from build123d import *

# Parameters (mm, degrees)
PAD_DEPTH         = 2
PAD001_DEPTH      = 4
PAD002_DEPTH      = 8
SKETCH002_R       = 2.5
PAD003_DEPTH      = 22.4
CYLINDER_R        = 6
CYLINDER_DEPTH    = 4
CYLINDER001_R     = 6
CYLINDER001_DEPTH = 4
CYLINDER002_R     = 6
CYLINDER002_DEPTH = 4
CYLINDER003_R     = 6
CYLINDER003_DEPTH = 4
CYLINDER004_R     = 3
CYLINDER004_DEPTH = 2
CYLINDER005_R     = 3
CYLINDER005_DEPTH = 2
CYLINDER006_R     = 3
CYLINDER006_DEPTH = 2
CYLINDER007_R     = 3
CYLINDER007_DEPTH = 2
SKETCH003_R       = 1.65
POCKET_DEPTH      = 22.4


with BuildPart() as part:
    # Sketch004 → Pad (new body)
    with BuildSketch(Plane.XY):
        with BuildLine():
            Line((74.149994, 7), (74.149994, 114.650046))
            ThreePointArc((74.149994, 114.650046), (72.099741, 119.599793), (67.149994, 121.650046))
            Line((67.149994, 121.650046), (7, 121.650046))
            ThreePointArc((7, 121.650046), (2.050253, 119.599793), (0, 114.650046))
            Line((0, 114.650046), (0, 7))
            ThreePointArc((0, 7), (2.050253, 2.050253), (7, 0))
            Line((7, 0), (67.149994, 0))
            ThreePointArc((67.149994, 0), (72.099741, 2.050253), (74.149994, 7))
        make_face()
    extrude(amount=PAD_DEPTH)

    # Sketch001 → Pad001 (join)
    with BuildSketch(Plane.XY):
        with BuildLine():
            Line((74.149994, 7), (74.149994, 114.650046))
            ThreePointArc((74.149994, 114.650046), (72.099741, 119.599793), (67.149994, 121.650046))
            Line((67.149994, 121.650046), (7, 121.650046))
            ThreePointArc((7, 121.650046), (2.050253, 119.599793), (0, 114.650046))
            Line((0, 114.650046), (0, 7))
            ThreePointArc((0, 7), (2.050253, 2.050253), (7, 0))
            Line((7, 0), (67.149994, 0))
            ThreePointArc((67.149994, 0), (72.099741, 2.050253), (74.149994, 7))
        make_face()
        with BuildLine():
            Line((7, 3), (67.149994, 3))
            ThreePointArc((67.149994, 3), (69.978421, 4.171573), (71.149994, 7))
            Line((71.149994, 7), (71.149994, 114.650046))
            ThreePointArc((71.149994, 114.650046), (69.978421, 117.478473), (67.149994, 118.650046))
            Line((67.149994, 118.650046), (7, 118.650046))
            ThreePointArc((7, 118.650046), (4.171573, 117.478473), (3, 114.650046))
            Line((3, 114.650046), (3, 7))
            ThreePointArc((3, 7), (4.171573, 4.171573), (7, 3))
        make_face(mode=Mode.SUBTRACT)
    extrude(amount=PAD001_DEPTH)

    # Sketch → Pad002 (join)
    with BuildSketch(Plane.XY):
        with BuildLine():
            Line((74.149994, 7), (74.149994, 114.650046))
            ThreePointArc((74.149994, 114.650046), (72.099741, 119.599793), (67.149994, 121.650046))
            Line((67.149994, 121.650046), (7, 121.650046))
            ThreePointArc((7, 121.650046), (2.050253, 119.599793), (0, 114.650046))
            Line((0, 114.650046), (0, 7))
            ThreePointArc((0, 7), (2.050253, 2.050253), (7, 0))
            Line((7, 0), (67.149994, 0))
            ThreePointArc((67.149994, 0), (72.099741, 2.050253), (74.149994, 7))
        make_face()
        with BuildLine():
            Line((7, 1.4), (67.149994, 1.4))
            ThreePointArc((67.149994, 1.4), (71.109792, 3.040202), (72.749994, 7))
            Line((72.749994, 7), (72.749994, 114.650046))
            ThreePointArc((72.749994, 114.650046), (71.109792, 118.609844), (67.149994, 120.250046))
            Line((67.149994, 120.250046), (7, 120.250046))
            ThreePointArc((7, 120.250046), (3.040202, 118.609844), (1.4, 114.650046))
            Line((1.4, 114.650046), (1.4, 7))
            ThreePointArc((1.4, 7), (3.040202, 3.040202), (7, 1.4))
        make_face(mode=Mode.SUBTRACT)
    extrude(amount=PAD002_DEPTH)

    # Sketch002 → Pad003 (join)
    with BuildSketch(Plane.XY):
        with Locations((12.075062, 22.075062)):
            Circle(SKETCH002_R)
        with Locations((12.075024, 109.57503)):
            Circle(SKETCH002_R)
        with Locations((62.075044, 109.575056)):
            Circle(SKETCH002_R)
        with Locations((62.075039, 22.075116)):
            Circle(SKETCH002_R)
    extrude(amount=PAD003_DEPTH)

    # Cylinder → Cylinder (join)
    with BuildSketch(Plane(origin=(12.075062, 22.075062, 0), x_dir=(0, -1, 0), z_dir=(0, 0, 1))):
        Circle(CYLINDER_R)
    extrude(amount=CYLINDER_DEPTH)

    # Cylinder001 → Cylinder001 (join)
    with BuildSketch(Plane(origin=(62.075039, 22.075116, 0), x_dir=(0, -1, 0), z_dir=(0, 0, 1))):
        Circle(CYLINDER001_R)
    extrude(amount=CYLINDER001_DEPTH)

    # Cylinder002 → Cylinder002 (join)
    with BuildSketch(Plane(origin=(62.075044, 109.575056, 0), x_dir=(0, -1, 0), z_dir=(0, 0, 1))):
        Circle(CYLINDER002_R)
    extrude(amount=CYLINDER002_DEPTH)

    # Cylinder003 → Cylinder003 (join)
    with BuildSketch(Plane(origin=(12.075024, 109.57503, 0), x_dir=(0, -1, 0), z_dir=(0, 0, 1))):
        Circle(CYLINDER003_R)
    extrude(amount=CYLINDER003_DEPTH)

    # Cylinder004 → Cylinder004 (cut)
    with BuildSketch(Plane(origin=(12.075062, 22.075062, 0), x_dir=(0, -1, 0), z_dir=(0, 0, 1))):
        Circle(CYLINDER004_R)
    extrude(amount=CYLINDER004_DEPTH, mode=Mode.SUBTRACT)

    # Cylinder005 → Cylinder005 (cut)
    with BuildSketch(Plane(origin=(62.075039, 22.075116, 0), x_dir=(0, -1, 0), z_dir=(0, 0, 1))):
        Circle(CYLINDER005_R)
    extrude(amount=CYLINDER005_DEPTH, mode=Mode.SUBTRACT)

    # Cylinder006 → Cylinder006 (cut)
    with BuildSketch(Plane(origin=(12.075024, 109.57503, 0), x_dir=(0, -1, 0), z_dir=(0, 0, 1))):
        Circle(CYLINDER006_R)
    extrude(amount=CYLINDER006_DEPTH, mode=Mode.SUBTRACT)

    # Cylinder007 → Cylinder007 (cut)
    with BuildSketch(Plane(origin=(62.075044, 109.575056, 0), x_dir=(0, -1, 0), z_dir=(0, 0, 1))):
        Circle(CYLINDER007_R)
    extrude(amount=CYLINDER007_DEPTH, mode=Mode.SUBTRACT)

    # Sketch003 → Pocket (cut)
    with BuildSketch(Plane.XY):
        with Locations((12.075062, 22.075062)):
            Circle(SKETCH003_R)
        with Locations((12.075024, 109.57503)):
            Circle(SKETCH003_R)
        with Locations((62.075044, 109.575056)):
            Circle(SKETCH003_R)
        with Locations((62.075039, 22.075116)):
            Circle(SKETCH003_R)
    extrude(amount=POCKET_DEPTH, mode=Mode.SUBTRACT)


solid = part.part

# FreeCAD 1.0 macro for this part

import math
import FreeCAD as App
import Part
import Sketcher

V = App.Vector
Q = App.Units.Quantity

doc = App.newDocument("Part")
body = doc.addObject("PartDesign::Body", "Body")

sketch1 = doc.addObject("Sketcher::SketchObject", "Sketch")
body.addObject(sketch1)
sketch1.AttachmentSupport = (doc.XY_Plane, [""])
sketch1.MapMode = "FlatFace"
sketch1.addGeometry([
    Part.LineSegment(V(74, 7, 0), V(74, 115, 0)),
    Part.ArcOfCircle(Part.Circle(V(67, 115, 0), V(0, 0, 1), 7), math.radians(0), math.radians(90)),
    Part.LineSegment(V(67, 122, 0), V(7, 122, 0)),
    Part.ArcOfCircle(Part.Circle(V(7, 115, 0), V(0, 0, 1), 7), math.radians(90), math.radians(180)),
    Part.LineSegment(V(0, 115, 0), V(0, 7, 0)),
    Part.ArcOfCircle(Part.Circle(V(7, 7, 0), V(0, 0, 1), 7), math.radians(-180), math.radians(-90)),
    Part.LineSegment(V(7, 0, 0), V(67, 0, 0)),
    Part.ArcOfCircle(Part.Circle(V(67, 7, 0), V(0, 0, 1), 7), math.radians(-90), math.radians(0)),
], False)
sketch1.addConstraint([
    Sketcher.Constraint("Tangent", 0, 2, 1, 1),
    Sketcher.Constraint("Tangent", 1, 2, 2, 1),
    Sketcher.Constraint("Tangent", 2, 2, 3, 1),
    Sketcher.Constraint("Tangent", 3, 2, 4, 1),
    Sketcher.Constraint("Tangent", 4, 2, 5, 1),
    Sketcher.Constraint("Tangent", 5, 2, 6, 1),
    Sketcher.Constraint("Tangent", 6, 2, 7, 1),
    Sketcher.Constraint("Tangent", 7, 2, 0, 1),
    Sketcher.Constraint("Vertical", 0),
    Sketcher.Constraint("Horizontal", 2),
    Sketcher.Constraint("Vertical", 4),
    Sketcher.Constraint("Horizontal", 6),
    Sketcher.Constraint("Equal", 1, 3),
    Sketcher.Constraint("Equal", 3, 5),
    Sketcher.Constraint("Equal", 5, 7),
    Sketcher.Constraint("PointOnObject", 3, 2, -2),
    Sketcher.Constraint("PointOnObject", 5, 2, -1),
    Sketcher.Constraint("Radius", 1, Q("7.000002 mm")),
    Sketcher.Constraint("DistanceX", 2, 2, 2, 1, Q("60.149994 mm")),
    Sketcher.Constraint("DistanceY", 0, 1, 0, 2, Q("107.650046 mm")),
])
pad1 = doc.addObject("PartDesign::Pad", "Pad")
body.addObject(pad1)
pad1.Profile = sketch1
pad1.Length = 2

sketch2 = doc.addObject("Sketcher::SketchObject", "Sketch001")
body.addObject(sketch2)
sketch2.AttachmentSupport = (doc.XY_Plane, [""])
sketch2.MapMode = "FlatFace"
sketch2.addGeometry([
    Part.LineSegment(V(74.1, 7, 0), V(74.1, 114.7, 0)),
    Part.ArcOfCircle(Part.Circle(V(67.1, 114.7, 0), V(0, 0, 1), 7), math.radians(0), math.radians(90)),
    Part.LineSegment(V(67.1, 121.7, 0), V(7, 121.7, 0)),
    Part.ArcOfCircle(Part.Circle(V(7, 114.7, 0), V(0, 0, 1), 7), math.radians(90), math.radians(180)),
    Part.LineSegment(V(0, 114.7, 0), V(0, 7, 0)),
    Part.ArcOfCircle(Part.Circle(V(7, 7, 0), V(0, 0, 1), 7), math.radians(-180), math.radians(-90)),
    Part.LineSegment(V(7, 0, 0), V(67.1, 0, 0)),
    Part.ArcOfCircle(Part.Circle(V(67.1, 7, 0), V(0, 0, 1), 7), math.radians(-90), math.radians(0)),
    Part.LineSegment(V(67.1, 3, 0), V(7, 3, 0)),
    Part.ArcOfCircle(Part.Circle(V(7, 7, 0), V(0, 0, 1), 4), math.radians(-180), math.radians(-90)),
    Part.LineSegment(V(3, 7, 0), V(3, 114.7, 0)),
    Part.ArcOfCircle(Part.Circle(V(7, 114.7, 0), V(0, 0, 1), 4), math.radians(90), math.radians(180)),
    Part.LineSegment(V(7, 118.7, 0), V(67.1, 118.7, 0)),
    Part.ArcOfCircle(Part.Circle(V(67.1, 114.7, 0), V(0, 0, 1), 4), math.radians(0), math.radians(90)),
    Part.LineSegment(V(71.1, 114.7, 0), V(71.1, 7, 0)),
    Part.ArcOfCircle(Part.Circle(V(67.1, 7, 0), V(0, 0, 1), 4), math.radians(-90), math.radians(0)),
], False)
sketch2.addConstraint([
    Sketcher.Constraint("Tangent", 0, 2, 1, 1),
    Sketcher.Constraint("Tangent", 1, 2, 2, 1),
    Sketcher.Constraint("Tangent", 2, 2, 3, 1),
    Sketcher.Constraint("Tangent", 3, 2, 4, 1),
    Sketcher.Constraint("Tangent", 4, 2, 5, 1),
    Sketcher.Constraint("Tangent", 5, 2, 6, 1),
    Sketcher.Constraint("Tangent", 6, 2, 7, 1),
    Sketcher.Constraint("Tangent", 7, 2, 0, 1),
    Sketcher.Constraint("Tangent", 8, 2, 9, 2),
    Sketcher.Constraint("Tangent", 9, 1, 10, 1),
    Sketcher.Constraint("Tangent", 10, 2, 11, 2),
    Sketcher.Constraint("Tangent", 11, 1, 12, 1),
    Sketcher.Constraint("Tangent", 12, 2, 13, 2),
    Sketcher.Constraint("Tangent", 13, 1, 14, 1),
    Sketcher.Constraint("Tangent", 14, 2, 15, 2),
    Sketcher.Constraint("Tangent", 15, 1, 8, 1),
    Sketcher.Constraint("Vertical", 0),
    Sketcher.Constraint("Horizontal", 2),
    Sketcher.Constraint("Vertical", 4),
    Sketcher.Constraint("Horizontal", 6),
    Sketcher.Constraint("Horizontal", 8),
    Sketcher.Constraint("Vertical", 10),
    Sketcher.Constraint("Horizontal", 12),
    Sketcher.Constraint("Vertical", 14),
    Sketcher.Constraint("Coincident", 9, 3, 5, 3),
    Sketcher.Constraint("Coincident", 11, 3, 3, 3),
    Sketcher.Constraint("Coincident", 13, 3, 1, 3),
    Sketcher.Constraint("Equal", 1, 3),
    Sketcher.Constraint("Equal", 3, 5),
    Sketcher.Constraint("Equal", 5, 7),
    Sketcher.Constraint("Equal", 13, 15),
    Sketcher.Constraint("PointOnObject", 3, 2, -2),
    Sketcher.Constraint("PointOnObject", 5, 2, -1),
    Sketcher.Constraint("Radius", 1, Q("7.000002 mm")),
    Sketcher.Constraint("Radius", 9, Q("4 mm")),
    Sketcher.Constraint("DistanceX", 2, 2, 2, 1, Q("60.149994 mm")),
    Sketcher.Constraint("DistanceY", 0, 1, 0, 2, Q("107.650046 mm")),
])
pad2 = doc.addObject("PartDesign::Pad", "Pad001")
body.addObject(pad2)
pad2.Profile = sketch2
pad2.Length = 4

sketch3 = doc.addObject("Sketcher::SketchObject", "Sketch002")
body.addObject(sketch3)
sketch3.AttachmentSupport = (doc.XY_Plane, [""])
sketch3.MapMode = "FlatFace"
sketch3.addGeometry([
    Part.LineSegment(V(74, 7, 0), V(74, 115, 0)),
    Part.ArcOfCircle(Part.Circle(V(67, 115, 0), V(0, 0, 1), 7), math.radians(0), math.radians(90)),
    Part.LineSegment(V(67, 122, 0), V(7, 122, 0)),
    Part.ArcOfCircle(Part.Circle(V(7, 115, 0), V(0, 0, 1), 7), math.radians(90), math.radians(180)),
    Part.LineSegment(V(0, 115, 0), V(0, 7, 0)),
    Part.ArcOfCircle(Part.Circle(V(7, 7, 0), V(0, 0, 1), 7), math.radians(-180), math.radians(-90)),
    Part.LineSegment(V(7, 0, 0), V(67, 0, 0)),
    Part.ArcOfCircle(Part.Circle(V(67, 7, 0), V(0, 0, 1), 7), math.radians(-90), math.radians(0)),
    Part.LineSegment(V(67, 1, 0), V(7, 1, 0)),
    Part.ArcOfCircle(Part.Circle(V(7, 7, 0), V(0, 0, 1), 6), math.radians(180), math.radians(270)),
    Part.LineSegment(V(1, 7, 0), V(1, 115, 0)),
    Part.ArcOfCircle(Part.Circle(V(7, 115, 0), V(0, 0, 1), 6), math.radians(90), math.radians(180)),
    Part.LineSegment(V(7, 120, 0), V(67, 120, 0)),
    Part.ArcOfCircle(Part.Circle(V(67, 115, 0), V(0, 0, 1), 6), math.radians(0), math.radians(90)),
    Part.LineSegment(V(73, 115, 0), V(73, 7, 0)),
    Part.ArcOfCircle(Part.Circle(V(67, 7, 0), V(0, 0, 1), 6), math.radians(-90), math.radians(0)),
], False)
sketch3.addConstraint([
    Sketcher.Constraint("Tangent", 0, 2, 1, 1),
    Sketcher.Constraint("Tangent", 1, 2, 2, 1),
    Sketcher.Constraint("Tangent", 2, 2, 3, 1),
    Sketcher.Constraint("Tangent", 3, 2, 4, 1),
    Sketcher.Constraint("Tangent", 4, 2, 5, 1),
    Sketcher.Constraint("Tangent", 5, 2, 6, 1),
    Sketcher.Constraint("Tangent", 6, 2, 7, 1),
    Sketcher.Constraint("Tangent", 7, 2, 0, 1),
    Sketcher.Constraint("Tangent", 8, 2, 9, 2),
    Sketcher.Constraint("Tangent", 9, 1, 10, 1),
    Sketcher.Constraint("Tangent", 10, 2, 11, 2),
    Sketcher.Constraint("Tangent", 11, 1, 12, 1),
    Sketcher.Constraint("Tangent", 12, 2, 13, 2),
    Sketcher.Constraint("Tangent", 13, 1, 14, 1),
    Sketcher.Constraint("Tangent", 14, 2, 15, 2),
    Sketcher.Constraint("Tangent", 15, 1, 8, 1),
    Sketcher.Constraint("Vertical", 0),
    Sketcher.Constraint("Horizontal", 2),
    Sketcher.Constraint("Vertical", 4),
    Sketcher.Constraint("Horizontal", 6),
    Sketcher.Constraint("Horizontal", 8),
    Sketcher.Constraint("Vertical", 10),
    Sketcher.Constraint("Horizontal", 12),
    Sketcher.Constraint("Vertical", 14),
    Sketcher.Constraint("Coincident", 9, 3, 5, 3),
    Sketcher.Constraint("Coincident", 11, 3, 3, 3),
    Sketcher.Constraint("Coincident", 13, 3, 1, 3),
    Sketcher.Constraint("Equal", 1, 3),
    Sketcher.Constraint("Equal", 3, 5),
    Sketcher.Constraint("Equal", 5, 7),
    Sketcher.Constraint("Equal", 13, 15),
    Sketcher.Constraint("PointOnObject", 3, 2, -2),
    Sketcher.Constraint("PointOnObject", 5, 2, -1),
    Sketcher.Constraint("Radius", 1, Q("7.000002 mm")),
    Sketcher.Constraint("Radius", 9, Q("5.6 mm")),
    Sketcher.Constraint("DistanceX", 2, 2, 2, 1, Q("60.149994 mm")),
    Sketcher.Constraint("DistanceY", 0, 1, 0, 2, Q("107.650046 mm")),
])
pad3 = doc.addObject("PartDesign::Pad", "Pad002")
body.addObject(pad3)
pad3.Profile = sketch3
pad3.Length = 8

sketch4 = doc.addObject("Sketcher::SketchObject", "Sketch003")
body.addObject(sketch4)
sketch4.AttachmentSupport = (doc.XY_Plane, [""])
sketch4.MapMode = "FlatFace"
sketch4.addGeometry([
    Part.Circle(V(12.1, 22.1, 0), V(0, 0, 1), 2.5),
    Part.Circle(V(12.1, 109.6, 0), V(0, 0, 1), 2.5),
    Part.Circle(V(62.1, 109.6, 0), V(0, 0, 1), 2.5),
    Part.Circle(V(62.1, 22.1, 0), V(0, 0, 1), 2.5),
], False)
sketch4.addConstraint([
    Sketcher.Constraint("Equal", 0, 1),
    Sketcher.Constraint("Equal", 1, 2),
    Sketcher.Constraint("Equal", 2, 3),
    Sketcher.Constraint("Diameter", 0, Q("5 mm")),
    Sketcher.Constraint("DistanceY", -1, 1, 0, 3, Q("22.075062 mm")),
    Sketcher.Constraint("DistanceY", -1, 1, 1, 3, Q("109.57503 mm")),
    Sketcher.Constraint("DistanceX", -1, 1, 3, 3, Q("62.075039 mm")),
    Sketcher.Constraint("DistanceX", 1, 3, 2, 3, Q("50.00002 mm")),
    Sketcher.Constraint("DistanceX", 0, 3, 2, 3, Q("49.999982 mm")),
    Sketcher.Constraint("DistanceY", 3, 3, 2, 3, Q("87.49994 mm")),
    Sketcher.Constraint("DistanceX", -1, 1, 0, 3, Q("12.075062 mm")),
    Sketcher.Constraint("DistanceY", -1, 1, 2, 3, Q("109.575056 mm")),
])
pad4 = doc.addObject("PartDesign::Pad", "Pad003")
body.addObject(pad4)
pad4.Profile = sketch4
pad4.Length = 22.4

sketch5 = doc.addObject("Sketcher::SketchObject", "Sketch004")
body.addObject(sketch5)
sketch5.AttachmentSupport = (doc.XY_Plane, [""])
sketch5.MapMode = "FlatFace"
sketch5.addGeometry(Part.Circle(V(12, 22, 0), V(0, 0, 1), 6), False)
sketch5.addConstraint([
    Sketcher.Constraint("Diameter", 0, Q("12 mm")),
    Sketcher.Constraint("DistanceY", -1, 1, 0, 3, Q("22.075062 mm")),
    Sketcher.Constraint("DistanceX", -1, 1, 0, 3, Q("12.075062 mm")),
])
pad5 = doc.addObject("PartDesign::Pad", "Pad004")
body.addObject(pad5)
pad5.Profile = sketch5
pad5.Length = 4

sketch6 = doc.addObject("Sketcher::SketchObject", "Sketch005")
body.addObject(sketch6)
sketch6.AttachmentSupport = (doc.XY_Plane, [""])
sketch6.MapMode = "FlatFace"
sketch6.addGeometry(Part.Circle(V(62, 22, 0), V(0, 0, 1), 6), False)
sketch6.addConstraint([
    Sketcher.Constraint("Diameter", 0, Q("12 mm")),
    Sketcher.Constraint("DistanceX", -1, 1, 0, 3, Q("62.075039 mm")),
    Sketcher.Constraint("DistanceY", -1, 1, 0, 3, Q("22.075116 mm")),
])
pad6 = doc.addObject("PartDesign::Pad", "Pad005")
body.addObject(pad6)
pad6.Profile = sketch6
pad6.Length = 4

sketch7 = doc.addObject("Sketcher::SketchObject", "Sketch006")
body.addObject(sketch7)
sketch7.AttachmentSupport = (doc.XY_Plane, [""])
sketch7.MapMode = "FlatFace"
sketch7.addGeometry(Part.Circle(V(62, 110, 0), V(0, 0, 1), 6), False)
sketch7.addConstraint([
    Sketcher.Constraint("Diameter", 0, Q("12 mm")),
    Sketcher.Constraint("DistanceX", -1, 1, 0, 3, Q("62.075044 mm")),
    Sketcher.Constraint("DistanceY", -1, 1, 0, 3, Q("109.575056 mm")),
])
pad7 = doc.addObject("PartDesign::Pad", "Pad006")
body.addObject(pad7)
pad7.Profile = sketch7
pad7.Length = 4

sketch8 = doc.addObject("Sketcher::SketchObject", "Sketch007")
body.addObject(sketch8)
sketch8.AttachmentSupport = (doc.XY_Plane, [""])
sketch8.MapMode = "FlatFace"
sketch8.addGeometry(Part.Circle(V(12, 110, 0), V(0, 0, 1), 6), False)
sketch8.addConstraint([
    Sketcher.Constraint("Diameter", 0, Q("12 mm")),
    Sketcher.Constraint("DistanceY", -1, 1, 0, 3, Q("109.57503 mm")),
    Sketcher.Constraint("DistanceX", -1, 1, 0, 3, Q("12.075024 mm")),
])
pad8 = doc.addObject("PartDesign::Pad", "Pad007")
body.addObject(pad8)
pad8.Profile = sketch8
pad8.Length = 4

sketch9 = doc.addObject("Sketcher::SketchObject", "Sketch008")
body.addObject(sketch9)
sketch9.AttachmentSupport = (doc.XY_Plane, [""])
sketch9.MapMode = "FlatFace"
sketch9.addGeometry(Part.Circle(V(12.1, 22.1, 0), V(0, 0, 1), 3), False)
sketch9.addConstraint([
    Sketcher.Constraint("Diameter", 0, Q("6 mm")),
    Sketcher.Constraint("DistanceY", -1, 1, 0, 3, Q("22.075062 mm")),
    Sketcher.Constraint("DistanceX", -1, 1, 0, 3, Q("12.075062 mm")),
])
pocket1 = doc.addObject("PartDesign::Pocket", "Pocket")
body.addObject(pocket1)
pocket1.Profile = sketch9
pocket1.Length = 2
pocket1.Reversed = True

sketch10 = doc.addObject("Sketcher::SketchObject", "Sketch009")
body.addObject(sketch10)
sketch10.AttachmentSupport = (doc.XY_Plane, [""])
sketch10.MapMode = "FlatFace"
sketch10.addGeometry(Part.Circle(V(62.1, 22.1, 0), V(0, 0, 1), 3), False)
sketch10.addConstraint([
    Sketcher.Constraint("Diameter", 0, Q("6 mm")),
    Sketcher.Constraint("DistanceX", -1, 1, 0, 3, Q("62.075039 mm")),
    Sketcher.Constraint("DistanceY", -1, 1, 0, 3, Q("22.075116 mm")),
])
pocket2 = doc.addObject("PartDesign::Pocket", "Pocket001")
body.addObject(pocket2)
pocket2.Profile = sketch10
pocket2.Length = 2
pocket2.Reversed = True

sketch11 = doc.addObject("Sketcher::SketchObject", "Sketch010")
body.addObject(sketch11)
sketch11.AttachmentSupport = (doc.XY_Plane, [""])
sketch11.MapMode = "FlatFace"
sketch11.addGeometry(Part.Circle(V(12.1, 109.6, 0), V(0, 0, 1), 3), False)
sketch11.addConstraint([
    Sketcher.Constraint("Diameter", 0, Q("6 mm")),
    Sketcher.Constraint("DistanceY", -1, 1, 0, 3, Q("109.57503 mm")),
    Sketcher.Constraint("DistanceX", -1, 1, 0, 3, Q("12.075024 mm")),
])
pocket3 = doc.addObject("PartDesign::Pocket", "Pocket002")
body.addObject(pocket3)
pocket3.Profile = sketch11
pocket3.Length = 2
pocket3.Reversed = True

sketch12 = doc.addObject("Sketcher::SketchObject", "Sketch011")
body.addObject(sketch12)
sketch12.AttachmentSupport = (doc.XY_Plane, [""])
sketch12.MapMode = "FlatFace"
sketch12.addGeometry(Part.Circle(V(62.1, 109.6, 0), V(0, 0, 1), 3), False)
sketch12.addConstraint([
    Sketcher.Constraint("Diameter", 0, Q("6 mm")),
    Sketcher.Constraint("DistanceX", -1, 1, 0, 3, Q("62.075044 mm")),
    Sketcher.Constraint("DistanceY", -1, 1, 0, 3, Q("109.575056 mm")),
])
pocket4 = doc.addObject("PartDesign::Pocket", "Pocket003")
body.addObject(pocket4)
pocket4.Profile = sketch12
pocket4.Length = 2
pocket4.Reversed = True

sketch13 = doc.addObject("Sketcher::SketchObject", "Sketch012")
body.addObject(sketch13)
sketch13.AttachmentSupport = (doc.XY_Plane, [""])
sketch13.MapMode = "FlatFace"
sketch13.addGeometry([
    Part.Circle(V(12.1, 22.1, 0), V(0, 0, 1), 1.6),
    Part.Circle(V(12.1, 109.6, 0), V(0, 0, 1), 1.6),
    Part.Circle(V(62.1, 109.6, 0), V(0, 0, 1), 1.6),
    Part.Circle(V(62.1, 22.1, 0), V(0, 0, 1), 1.6),
], False)
sketch13.addConstraint([
    Sketcher.Constraint("Equal", 0, 1),
    Sketcher.Constraint("Equal", 1, 2),
    Sketcher.Constraint("Equal", 2, 3),
    Sketcher.Constraint("Diameter", 0, Q("3.3 mm")),
    Sketcher.Constraint("DistanceY", -1, 1, 0, 3, Q("22.075062 mm")),
    Sketcher.Constraint("DistanceY", -1, 1, 1, 3, Q("109.57503 mm")),
    Sketcher.Constraint("DistanceX", -1, 1, 3, 3, Q("62.075039 mm")),
    Sketcher.Constraint("DistanceX", 1, 3, 2, 3, Q("50.00002 mm")),
    Sketcher.Constraint("DistanceX", 0, 3, 2, 3, Q("49.999982 mm")),
    Sketcher.Constraint("DistanceY", 3, 3, 2, 3, Q("87.49994 mm")),
    Sketcher.Constraint("DistanceX", -1, 1, 0, 3, Q("12.075062 mm")),
    Sketcher.Constraint("DistanceY", -1, 1, 2, 3, Q("109.575056 mm")),
])
pocket5 = doc.addObject("PartDesign::Pocket", "Pocket004")
body.addObject(pocket5)
pocket5.Profile = sketch13
pocket5.Length = 22.4
pocket5.Reversed = True

doc.recompute()
